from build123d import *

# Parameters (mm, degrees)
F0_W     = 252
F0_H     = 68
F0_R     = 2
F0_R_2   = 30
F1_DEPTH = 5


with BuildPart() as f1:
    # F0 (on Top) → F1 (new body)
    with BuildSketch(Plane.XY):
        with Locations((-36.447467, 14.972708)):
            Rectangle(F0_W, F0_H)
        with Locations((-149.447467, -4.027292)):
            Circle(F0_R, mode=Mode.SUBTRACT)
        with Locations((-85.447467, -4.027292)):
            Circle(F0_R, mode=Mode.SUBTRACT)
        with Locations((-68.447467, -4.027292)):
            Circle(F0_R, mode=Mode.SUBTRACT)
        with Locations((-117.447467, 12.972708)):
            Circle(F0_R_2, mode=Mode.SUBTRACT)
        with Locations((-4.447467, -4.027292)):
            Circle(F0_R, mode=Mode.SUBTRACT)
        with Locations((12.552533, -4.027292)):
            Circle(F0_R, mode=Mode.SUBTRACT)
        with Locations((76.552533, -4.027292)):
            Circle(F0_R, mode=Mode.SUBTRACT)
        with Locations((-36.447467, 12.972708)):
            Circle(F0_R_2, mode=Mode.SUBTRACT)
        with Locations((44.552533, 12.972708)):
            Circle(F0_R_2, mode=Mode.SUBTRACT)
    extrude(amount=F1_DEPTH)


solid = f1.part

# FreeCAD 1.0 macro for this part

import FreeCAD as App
import Part
import Sketcher

V = App.Vector
Q = App.Units.Quantity

doc = App.newDocument("Part")
body = doc.addObject("PartDesign::Body", "Body")

sketch1 = doc.addObject("Sketcher::SketchObject", "Sketch")
body.addObject(sketch1)
sketch1.AttachmentSupport = (doc.XY_Plane, [""])
sketch1.MapMode = "FlatFace"
sketch1.addGeometry([
    Part.LineSegment(V(-162.4, 49, 0), V(-162.4, -19, 0)),
    Part.LineSegment(V(-162.4, -19, 0), V(89.6, -19, 0)),
    Part.LineSegment(V(89.6, -19, 0), V(89.6, 49, 0)),
    Part.LineSegment(V(89.6, 49, 0), V(-162.4, 49, 0)),
    Part.Circle(V(-149.4, -4, 0), V(0, 0, 1), 2),
    Part.Circle(V(-85.4, -4, 0), V(0, 0, 1), 2),
    Part.Circle(V(-68.4, -4, 0), V(0, 0, 1), 2),
    Part.Circle(V(-4.4, -4, 0), V(0, 0, 1), 2),
    Part.Circle(V(12.6, -4, 0), V(0, 0, 1), 2),
    Part.Circle(V(76.6, -4, 0), V(0, 0, 1), 2),
    Part.Circle(V(-117.4, 13, 0), V(0, 0, 1), 30),
    Part.Circle(V(-36.4, 13, 0), V(0, 0, 1), 30),
    Part.Circle(V(44.6, 13, 0), V(0, 0, 1), 30),
], False)
sketch1.addConstraint([
    Sketcher.Constraint("Coincident", 0, 2, 1, 1),
    Sketcher.Constraint("Coincident", 1, 2, 2, 1),
    Sketcher.Constraint("Coincident", 2, 2, 3, 1),
    Sketcher.Constraint("Coincident", 3, 2, 0, 1),
    Sketcher.Constraint("Vertical", 0),
    Sketcher.Constraint("Horizontal", 1),
    Sketcher.Constraint("Vertical", 2),
    Sketcher.Constraint("Horizontal", 3),
    Sketcher.Constraint("Equal", 4, 5),
    Sketcher.Constraint("Equal", 5, 6),
    Sketcher.Constraint("Equal", 6, 7),
    Sketcher.Constraint("Equal", 7, 8),
    Sketcher.Constraint("Equal", 8, 9),
    Sketcher.Constraint("Equal", 10, 11),
    Sketcher.Constraint("Equal", 11, 12),
    Sketcher.Constraint("Horizontal", 4, 3, 5, 3),
    Sketcher.Constraint("Horizontal", 5, 3, 6, 3),
    Sketcher.Constraint("Horizontal", 6, 3, 7, 3),
    Sketcher.Constraint("Horizontal", 7, 3, 8, 3),
    Sketcher.Constraint("Horizontal", 8, 3, 9, 3),
    Sketcher.Constraint("Horizontal", 10, 3, 11, 3),
    Sketcher.Constraint("Horizontal", 11, 3, 12, 3),
    Sketcher.Constraint("Diameter", 4, Q("4 mm")),
    Sketcher.Constraint("Diameter", 10, Q("60 mm")),
    Sketcher.Constraint("DistanceX", 1, 1, 1, 2, Q("252 mm")),
    Sketcher.Constraint("DistanceY", 0, 2, 0, 1, Q("68 mm")),
    Sketcher.Constraint("DistanceX", 4, 3, 5, 3, Q("64 mm")),
    Sketcher.Constraint("DistanceX", 5, 3, 6, 3, Q("17 mm")),
    Sketcher.Constraint("DistanceX", 6, 3, 7, 3, Q("64 mm")),
    Sketcher.Constraint("DistanceX", 7, 3, 8, 3, Q("17 mm")),
    Sketcher.Constraint("DistanceX", 8, 3, 9, 3, Q("64 mm")),
    Sketcher.Constraint("DistanceX", 4, 3, 10, 3, Q("32 mm")),
    Sketcher.Constraint("DistanceY", 4, 3, 10, 3, Q("17 mm")),
    Sketcher.Constraint("DistanceX", 6, 3, 11, 3, Q("32 mm")),
    Sketcher.Constraint("DistanceX", 8, 3, 12, 3, Q("32 mm")),
    Sketcher.Constraint("DistanceX", 0, 2, 4, 3, Q("13 mm")),
    Sketcher.Constraint("DistanceY", 0, 2, 4, 3, Q("15 mm")),
    Sketcher.Constraint("DistanceY", -1, 1, 10, 3, Q("12.972708 mm")),
    Sketcher.Constraint("DistanceX", 4, 3, -1, 1, Q("149.447467 mm")),
])
pad1 = doc.addObject("PartDesign::Pad", "Pad")
body.addObject(pad1)
pad1.Profile = sketch1
pad1.Length = 5

doc.recompute()
